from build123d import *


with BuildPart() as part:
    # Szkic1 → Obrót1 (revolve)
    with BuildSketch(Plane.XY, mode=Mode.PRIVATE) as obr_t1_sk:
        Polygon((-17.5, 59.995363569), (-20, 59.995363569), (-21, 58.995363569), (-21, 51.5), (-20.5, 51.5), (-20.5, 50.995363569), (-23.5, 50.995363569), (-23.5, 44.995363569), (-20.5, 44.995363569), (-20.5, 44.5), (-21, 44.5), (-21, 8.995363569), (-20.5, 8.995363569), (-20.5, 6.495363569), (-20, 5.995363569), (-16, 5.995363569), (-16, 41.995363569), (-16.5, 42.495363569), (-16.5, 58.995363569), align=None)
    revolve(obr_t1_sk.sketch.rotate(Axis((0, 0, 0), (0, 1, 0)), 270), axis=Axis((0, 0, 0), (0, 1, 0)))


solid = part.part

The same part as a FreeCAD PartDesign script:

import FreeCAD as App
import Part
import Sketcher
from FreeCAD import Vector

doc = App.newDocument("Part")
body = doc.addObject("PartDesign::Body", "Body")

# Sketch on XY plane
sketch1 = body.newObject("Sketcher::SketchObject", "Sketch")
sketch1.AttachmentSupport = (doc.getObject("XY_Plane"), [""])
sketch1.MapMode = "FlatFace"
sketch1.addGeometry([
    Part.LineSegment(Vector(-17.5, 60, 0), Vector(-20, 60, 0)),  # 0
    Part.LineSegment(Vector(-20, 60, 0), Vector(-21, 59, 0)),  # 1
    Part.LineSegment(Vector(-21, 59, 0), Vector(-21, 51.5, 0)),  # 2
    Part.LineSegment(Vector(-21, 51.5, 0), Vector(-20.5, 51.5, 0)),  # 3
    Part.LineSegment(Vector(-20.5, 51.5, 0), Vector(-20.5, 51, 0)),  # 4
    Part.LineSegment(Vector(-20.5, 51, 0), Vector(-23.5, 51, 0)),  # 5
    Part.LineSegment(Vector(-23.5, 51, 0), Vector(-23.5, 45, 0)),  # 6
    Part.LineSegment(Vector(-23.5, 45, 0), Vector(-20.5, 45, 0)),  # 7
    Part.LineSegment(Vector(-20.5, 45, 0), Vector(-20.5, 44.5, 0)),  # 8
    Part.LineSegment(Vector(-20.5, 44.5, 0), Vector(-21, 44.5, 0)),  # 9
    Part.LineSegment(Vector(-21, 44.5, 0), Vector(-21, 9, 0)),  # 10
    Part.LineSegment(Vector(-21, 9, 0), Vector(-20.5, 9, 0)),  # 11
    Part.LineSegment(Vector(-20.5, 9, 0), Vector(-20.5, 6.5, 0)),  # 12
    Part.LineSegment(Vector(-20.5, 6.5, 0), Vector(-20, 6, 0)),  # 13
    Part.LineSegment(Vector(-20, 6, 0), Vector(-16, 6, 0)),  # 14
    Part.LineSegment(Vector(-16, 6, 0), Vector(-16, 42, 0)),  # 15
    Part.LineSegment(Vector(-16, 42, 0), Vector(-16.5, 42.5, 0)),  # 16
    Part.LineSegment(Vector(-16.5, 42.5, 0), Vector(-16.5, 59, 0)),  # 17
    Part.LineSegment(Vector(-16.5, 59, 0), Vector(-17.5, 60, 0)),  # 18
], False)
sketch1.addConstraint([
    Sketcher.Constraint("Coincident", 0, 2, 1, 1),
    Sketcher.Constraint("Coincident", 1, 2, 2, 1),
    Sketcher.Constraint("Coincident", 2, 2, 3, 1),
    Sketcher.Constraint("Coincident", 3, 2, 4, 1),
    Sketcher.Constraint("Coincident", 4, 2, 5, 1),
    Sketcher.Constraint("Coincident", 5, 2, 6, 1),
    Sketcher.Constraint("Coincident", 6, 2, 7, 1),
    Sketcher.Constraint("Coincident", 7, 2, 8, 1),
    Sketcher.Constraint("Coincident", 8, 2, 9, 1),
    Sketcher.Constraint("Coincident", 9, 2, 10, 1),
    Sketcher.Constraint("Coincident", 10, 2, 11, 1),
    Sketcher.Constraint("Coincident", 11, 2, 12, 1),
    Sketcher.Constraint("Coincident", 12, 2, 13, 1),
    Sketcher.Constraint("Coincident", 13, 2, 14, 1),
    Sketcher.Constraint("Coincident", 14, 2, 15, 1),
    Sketcher.Constraint("Coincident", 15, 2, 16, 1),
    Sketcher.Constraint("Coincident", 16, 2, 17, 1),
    Sketcher.Constraint("Coincident", 17, 2, 18, 1),
    Sketcher.Constraint("Coincident", 18, 2, 0, 1),
    Sketcher.Constraint("Horizontal", 0),
    Sketcher.Constraint("Vertical", 2),
    Sketcher.Constraint("Horizontal", 3),
    Sketcher.Constraint("Vertical", 4),
    Sketcher.Constraint("Horizontal", 5),
    Sketcher.Constraint("Vertical", 6),
    Sketcher.Constraint("Horizontal", 7),
    Sketcher.Constraint("Vertical", 8),
    Sketcher.Constraint("Horizontal", 9),
    Sketcher.Constraint("Vertical", 10),
    Sketcher.Constraint("Horizontal", 11),
    Sketcher.Constraint("Vertical", 12),
    Sketcher.Constraint("Horizontal", 14),
    Sketcher.Constraint("Vertical", 15),
    Sketcher.Constraint("Vertical", 17),
    Sketcher.Constraint("Perpendicular", 1, 13),
    Sketcher.Constraint("Parallel", 13, 16),
    Sketcher.Constraint("Parallel", 16, 18),
    Sketcher.Constraint("Horizontal", 1, 2, 17, 2),
    Sketcher.Constraint("Vertical", 4, 2, 7, 2),
    Sketcher.Constraint("Vertical", 2, 2, 9, 2),
    Sketcher.Constraint("Vertical", 8, 2, 11, 2),
    Sketcher.Constraint("Vertical", 0, 2, 13, 2),
    Sketcher.Constraint("Equal", 0, 12),
    Sketcher.Constraint("Equal", 13, 16),
    Sketcher.Constraint("Equal", 1, 18),
    Sketcher.Constraint("DistanceX", 5, 2, 5, 1, 3.0),
    Sketcher.Constraint("DistanceX", 14, 1, 14, 2, 4.0),
    Sketcher.Constraint("DistanceY", 6, 2, 6, 1, 6.0),
    Sketcher.Constraint("DistanceY", 15, 1, 15, 2, 36.0),
    Sketcher.Constraint("DistanceX", 0, 2, 0, 1, 2.5),
    Sketcher.Constraint("DistanceX", 3, 1, 3, 2, 0.5),
    Sketcher.Constraint("DistanceY", 17, 1, 17, 2, 16.5),
    Sketcher.Constraint("DistanceX", 0, 2, -1, 1, 20.0),
    Sketcher.Constraint("DistanceY", 4, 2, 1, 2, 8.0),
    Sketcher.Constraint("DistanceY", 8, 2, 3, 2, 7.0),
    Sketcher.Constraint("DistanceY", -1, 1, 2, 2, 51.5),
    Sketcher.Constraint("DistanceY", 2, 2, 2, 1, 7.495364),
])
revolution = body.newObject("PartDesign::Revolution", "Revolution")
revolution.Profile = sketch1
revolution.ReferenceAxis = (sketch1, ["V_Axis"])
revolution.Angle = 360

doc.recompute()
